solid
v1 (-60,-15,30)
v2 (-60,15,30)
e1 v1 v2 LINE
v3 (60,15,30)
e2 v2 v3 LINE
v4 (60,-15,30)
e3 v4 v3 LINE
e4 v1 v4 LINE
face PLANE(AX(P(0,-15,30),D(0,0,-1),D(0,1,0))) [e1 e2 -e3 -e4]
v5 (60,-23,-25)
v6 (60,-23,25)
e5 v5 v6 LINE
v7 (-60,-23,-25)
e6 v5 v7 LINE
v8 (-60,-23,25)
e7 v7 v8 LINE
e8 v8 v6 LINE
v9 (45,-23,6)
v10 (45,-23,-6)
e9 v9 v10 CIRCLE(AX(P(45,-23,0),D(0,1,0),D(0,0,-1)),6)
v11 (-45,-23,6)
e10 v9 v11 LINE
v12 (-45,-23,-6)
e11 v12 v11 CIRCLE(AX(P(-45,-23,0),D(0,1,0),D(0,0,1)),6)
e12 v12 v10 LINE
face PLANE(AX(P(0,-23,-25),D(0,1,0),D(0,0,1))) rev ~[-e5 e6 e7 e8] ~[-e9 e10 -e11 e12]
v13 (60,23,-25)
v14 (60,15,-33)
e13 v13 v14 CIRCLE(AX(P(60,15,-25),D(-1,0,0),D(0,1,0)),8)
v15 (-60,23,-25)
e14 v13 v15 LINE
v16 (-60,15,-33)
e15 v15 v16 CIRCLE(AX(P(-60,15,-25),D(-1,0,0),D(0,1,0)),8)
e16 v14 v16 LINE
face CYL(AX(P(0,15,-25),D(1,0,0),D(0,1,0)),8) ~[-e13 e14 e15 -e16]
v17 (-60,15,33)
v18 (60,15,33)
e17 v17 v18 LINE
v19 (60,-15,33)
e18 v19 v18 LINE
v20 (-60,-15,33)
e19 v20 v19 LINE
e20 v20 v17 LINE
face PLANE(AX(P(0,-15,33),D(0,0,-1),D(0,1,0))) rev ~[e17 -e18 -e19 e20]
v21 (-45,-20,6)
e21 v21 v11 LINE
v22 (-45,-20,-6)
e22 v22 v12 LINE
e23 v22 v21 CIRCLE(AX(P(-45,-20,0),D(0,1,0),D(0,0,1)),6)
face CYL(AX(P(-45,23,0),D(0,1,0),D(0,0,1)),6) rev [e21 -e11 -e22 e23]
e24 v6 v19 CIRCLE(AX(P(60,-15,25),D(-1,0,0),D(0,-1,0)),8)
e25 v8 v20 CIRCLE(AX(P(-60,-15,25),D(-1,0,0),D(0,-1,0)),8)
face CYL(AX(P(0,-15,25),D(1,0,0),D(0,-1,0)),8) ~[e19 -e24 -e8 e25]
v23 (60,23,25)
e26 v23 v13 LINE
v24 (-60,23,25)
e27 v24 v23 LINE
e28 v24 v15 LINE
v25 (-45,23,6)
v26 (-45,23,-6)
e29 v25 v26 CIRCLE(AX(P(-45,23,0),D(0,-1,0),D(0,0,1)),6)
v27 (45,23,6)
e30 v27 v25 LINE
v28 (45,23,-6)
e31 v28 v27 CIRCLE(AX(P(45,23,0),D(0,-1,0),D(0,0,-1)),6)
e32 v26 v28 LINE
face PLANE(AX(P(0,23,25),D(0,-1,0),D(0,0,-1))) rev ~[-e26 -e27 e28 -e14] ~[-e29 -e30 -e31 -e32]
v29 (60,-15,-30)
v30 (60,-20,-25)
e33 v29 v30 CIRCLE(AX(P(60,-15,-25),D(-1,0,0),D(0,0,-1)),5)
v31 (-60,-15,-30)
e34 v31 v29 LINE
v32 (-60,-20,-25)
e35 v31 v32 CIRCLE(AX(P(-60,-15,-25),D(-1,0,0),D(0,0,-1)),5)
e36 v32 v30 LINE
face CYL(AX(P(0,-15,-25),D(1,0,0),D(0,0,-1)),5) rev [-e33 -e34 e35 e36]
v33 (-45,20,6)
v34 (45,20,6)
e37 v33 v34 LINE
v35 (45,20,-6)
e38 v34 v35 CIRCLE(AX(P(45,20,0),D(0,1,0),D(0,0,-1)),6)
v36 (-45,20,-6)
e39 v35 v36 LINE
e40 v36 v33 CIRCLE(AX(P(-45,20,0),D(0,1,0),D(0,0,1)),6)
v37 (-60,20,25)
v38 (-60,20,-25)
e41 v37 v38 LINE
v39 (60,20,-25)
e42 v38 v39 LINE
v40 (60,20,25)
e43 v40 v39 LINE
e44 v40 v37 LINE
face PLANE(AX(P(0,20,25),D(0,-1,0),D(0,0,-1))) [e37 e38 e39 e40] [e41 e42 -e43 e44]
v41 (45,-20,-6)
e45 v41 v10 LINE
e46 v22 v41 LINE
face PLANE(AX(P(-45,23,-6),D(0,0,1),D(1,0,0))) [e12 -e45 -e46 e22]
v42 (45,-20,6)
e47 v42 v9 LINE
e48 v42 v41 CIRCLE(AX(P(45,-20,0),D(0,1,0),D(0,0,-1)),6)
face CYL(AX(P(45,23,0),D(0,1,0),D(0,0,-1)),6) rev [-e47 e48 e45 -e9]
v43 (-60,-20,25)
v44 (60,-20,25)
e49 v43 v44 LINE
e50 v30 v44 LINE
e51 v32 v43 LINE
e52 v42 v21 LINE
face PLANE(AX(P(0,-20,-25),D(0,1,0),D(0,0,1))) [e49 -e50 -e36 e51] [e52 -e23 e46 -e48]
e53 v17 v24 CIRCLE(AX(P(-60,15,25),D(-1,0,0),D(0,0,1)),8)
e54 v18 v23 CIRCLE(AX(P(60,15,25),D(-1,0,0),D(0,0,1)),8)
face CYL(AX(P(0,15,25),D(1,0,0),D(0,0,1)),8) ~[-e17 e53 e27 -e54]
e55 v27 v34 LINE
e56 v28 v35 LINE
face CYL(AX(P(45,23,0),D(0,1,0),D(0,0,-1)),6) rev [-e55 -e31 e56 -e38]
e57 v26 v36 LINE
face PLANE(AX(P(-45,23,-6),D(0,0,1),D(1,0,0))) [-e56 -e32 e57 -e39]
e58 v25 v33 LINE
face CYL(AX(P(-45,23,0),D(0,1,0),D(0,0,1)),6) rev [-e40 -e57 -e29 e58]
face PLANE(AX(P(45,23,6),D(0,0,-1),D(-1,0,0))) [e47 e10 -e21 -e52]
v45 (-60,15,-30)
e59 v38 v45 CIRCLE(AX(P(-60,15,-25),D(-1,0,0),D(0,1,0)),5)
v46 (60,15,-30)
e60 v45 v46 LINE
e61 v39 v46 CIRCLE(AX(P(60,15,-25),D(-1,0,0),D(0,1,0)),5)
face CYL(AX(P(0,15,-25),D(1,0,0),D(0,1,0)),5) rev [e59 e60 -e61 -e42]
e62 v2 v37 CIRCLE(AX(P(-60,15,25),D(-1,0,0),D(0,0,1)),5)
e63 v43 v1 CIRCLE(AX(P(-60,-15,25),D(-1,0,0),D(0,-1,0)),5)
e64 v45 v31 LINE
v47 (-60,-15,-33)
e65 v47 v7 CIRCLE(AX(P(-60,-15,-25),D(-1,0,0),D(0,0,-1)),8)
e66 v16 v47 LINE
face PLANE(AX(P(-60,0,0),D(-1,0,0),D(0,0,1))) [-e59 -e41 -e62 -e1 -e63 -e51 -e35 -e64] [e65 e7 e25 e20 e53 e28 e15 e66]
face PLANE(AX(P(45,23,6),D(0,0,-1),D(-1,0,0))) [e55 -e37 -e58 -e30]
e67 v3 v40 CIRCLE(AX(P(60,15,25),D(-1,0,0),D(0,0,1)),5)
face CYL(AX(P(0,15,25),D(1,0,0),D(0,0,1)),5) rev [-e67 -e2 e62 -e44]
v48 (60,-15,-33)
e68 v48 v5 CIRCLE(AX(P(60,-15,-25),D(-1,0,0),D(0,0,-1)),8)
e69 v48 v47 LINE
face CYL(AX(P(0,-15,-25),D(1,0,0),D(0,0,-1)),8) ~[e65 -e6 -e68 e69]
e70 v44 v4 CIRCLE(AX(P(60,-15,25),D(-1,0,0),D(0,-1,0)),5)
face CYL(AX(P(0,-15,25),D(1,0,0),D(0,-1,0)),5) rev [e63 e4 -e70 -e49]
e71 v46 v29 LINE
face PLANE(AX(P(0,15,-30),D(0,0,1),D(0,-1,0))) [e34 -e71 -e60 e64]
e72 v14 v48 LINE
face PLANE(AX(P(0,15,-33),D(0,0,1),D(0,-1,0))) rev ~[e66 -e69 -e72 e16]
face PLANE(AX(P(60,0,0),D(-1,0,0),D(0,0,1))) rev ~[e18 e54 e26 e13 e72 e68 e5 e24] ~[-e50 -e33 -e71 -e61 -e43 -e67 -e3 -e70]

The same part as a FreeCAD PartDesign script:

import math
import FreeCAD as App
import Part
import Sketcher
from FreeCAD import Vector

doc = App.newDocument("Part")
body = doc.addObject("PartDesign::Body", "Body")

sketch1 = body.newObject("Sketcher::SketchObject", "Sketch")
sketch1.AttachmentSupport = (doc.getObject("YZ_Plane"), [""])
sketch1.MapMode = "FlatFace"
sketch1.addGeometry([
    Part.LineSegment(Vector(23, -25, 0), Vector(23, 25, 0)),
    Part.ArcOfCircle(Part.Circle(Vector(15, 25, 0), Vector(0, 0, 1), 8), math.radians(0), math.radians(90)),
    Part.LineSegment(Vector(15, 33, 0), Vector(-15, 33, 0)),
    Part.ArcOfCircle(Part.Circle(Vector(-15, 25, 0), Vector(0, 0, 1), 8), math.radians(90), math.radians(180)),
    Part.LineSegment(Vector(-23, 25, 0), Vector(-23, -25, 0)),
    Part.ArcOfCircle(Part.Circle(Vector(-15, -25, 0), Vector(0, 0, 1), 8), math.radians(-180), math.radians(-90)),
    Part.LineSegment(Vector(-15, -33, 0), Vector(15, -33, 0)),
    Part.ArcOfCircle(Part.Circle(Vector(15, -25, 0), Vector(0, 0, 1), 8), math.radians(-90), math.radians(0)),
    Part.LineSegment(Vector(20, 25, 0), Vector(20, -25, 0)),
    Part.ArcOfCircle(Part.Circle(Vector(15, -25, 0), Vector(0, 0, 1), 5), math.radians(-90), math.radians(0)),
    Part.LineSegment(Vector(15, -30, 0), Vector(-15, -30, 0)),
    Part.ArcOfCircle(Part.Circle(Vector(-15, -25, 0), Vector(0, 0, 1), 5), math.radians(180), math.radians(270)),
    Part.LineSegment(Vector(-20, -25, 0), Vector(-20, 25, 0)),
    Part.ArcOfCircle(Part.Circle(Vector(-15, 25, 0), Vector(0, 0, 1), 5), math.radians(90), math.radians(180)),
    Part.LineSegment(Vector(-15, 30, 0), Vector(15, 30, 0)),
    Part.ArcOfCircle(Part.Circle(Vector(15, 25, 0), Vector(0, 0, 1), 5), math.radians(0), math.radians(90)),
], False)
sketch1.addConstraint([
    Sketcher.Constraint("Tangent", 0, 2, 1, 1),
    Sketcher.Constraint("Tangent", 1, 2, 2, 1),
    Sketcher.Constraint("Tangent", 2, 2, 3, 1),
    Sketcher.Constraint("Tangent", 3, 2, 4, 1),
    Sketcher.Constraint("Tangent", 4, 2, 5, 1),
    Sketcher.Constraint("Tangent", 5, 2, 6, 1),
    Sketcher.Constraint("Tangent", 6, 2, 7, 1),
    Sketcher.Constraint("Tangent", 7, 2, 0, 1),
    Sketcher.Constraint("Tangent", 8, 2, 9, 2),
    Sketcher.Constraint("Tangent", 9, 1, 10, 1),
    Sketcher.Constraint("Tangent", 10, 2, 11, 2),
    Sketcher.Constraint("Tangent", 11, 1, 12, 1),
    Sketcher.Constraint("Tangent", 12, 2, 13, 2),
    Sketcher.Constraint("Tangent", 13, 1, 14, 1),
    Sketcher.Constraint("Tangent", 14, 2, 15, 2),
    Sketcher.Constraint("Tangent", 15, 1, 8, 1),
    Sketcher.Constraint("Vertical", 0),
    Sketcher.Constraint("Horizontal", 2),
    Sketcher.Constraint("Vertical", 4),
    Sketcher.Constraint("Horizontal", 6),
    Sketcher.Constraint("Vertical", 8),
    Sketcher.Constraint("Horizontal", 10),
    Sketcher.Constraint("Vertical", 12),
    Sketcher.Constraint("Horizontal", 14),
    Sketcher.Constraint("Coincident", 9, 3, 7, 3),
    Sketcher.Constraint("Coincident", 11, 3, 5, 3),
    Sketcher.Constraint("Coincident", 13, 3, 3, 3),
    Sketcher.Constraint("Equal", 1, 3),
    Sketcher.Constraint("Equal", 3, 5),
    Sketcher.Constraint("Equal", 5, 7),
    Sketcher.Constraint("Equal", 13, 15),
    Sketcher.Constraint("Symmetric", 1, 3, 5, 3, -1, 1),
    Sketcher.Constraint("Radius", 1, 8.0),
    Sketcher.Constraint("Radius", 9, 5.0),
    Sketcher.Constraint("DistanceX", 2, 2, 2, 1, 30.0),
    Sketcher.Constraint("DistanceY", 0, 1, 0, 2, 50.0),
])
pad1 = body.newObject("PartDesign::Pad", "Pad")
pad1.Profile = sketch1
pad1.Length = 120
pad1.Midplane = True

sketch2 = body.newObject("Sketcher::SketchObject", "Sketch001")
sketch2.AttachmentSupport = (doc.getObject("XZ_Plane"), [""])
sketch2.MapMode = "FlatFace"
sketch2.AttachmentOffset = App.Placement(Vector(0, 0, -23), App.Rotation())
sketch2.addGeometry([
    Part.LineSegment(Vector(45, -6, 0), Vector(-45, -6, 0)),
    Part.ArcOfCircle(Part.Circle(Vector(-45, 0, 0), Vector(0, 0, 1), 6), math.radians(90), math.radians(270)),
    Part.LineSegment(Vector(-45, 6, 0), Vector(45, 6, 0)),
    Part.ArcOfCircle(Part.Circle(Vector(45, 0, 0), Vector(0, 0, 1), 6), math.radians(-90), math.radians(90)),
], False)
sketch2.addConstraint([
    Sketcher.Constraint("Tangent", 0, 2, 1, 2),
    Sketcher.Constraint("Tangent", 1, 1, 2, 1),
    Sketcher.Constraint("Tangent", 2, 2, 3, 2),
    Sketcher.Constraint("Tangent", 3, 1, 0, 1),
    Sketcher.Constraint("Horizontal", 0),
    Sketcher.Constraint("Horizontal", 2),
    Sketcher.Constraint("Symmetric", 1, 3, 3, 3, -1, 1),
    Sketcher.Constraint("Radius", 1, 6.0),
    Sketcher.Constraint("DistanceX", 0, 2, 0, 1, 90.0),
])
pocket1 = body.newObject("PartDesign::Pocket", "Pocket")
pocket1.Profile = sketch2
pocket1.Type = "ThroughAll"
pocket1.Reversed = True

doc.recompute()
